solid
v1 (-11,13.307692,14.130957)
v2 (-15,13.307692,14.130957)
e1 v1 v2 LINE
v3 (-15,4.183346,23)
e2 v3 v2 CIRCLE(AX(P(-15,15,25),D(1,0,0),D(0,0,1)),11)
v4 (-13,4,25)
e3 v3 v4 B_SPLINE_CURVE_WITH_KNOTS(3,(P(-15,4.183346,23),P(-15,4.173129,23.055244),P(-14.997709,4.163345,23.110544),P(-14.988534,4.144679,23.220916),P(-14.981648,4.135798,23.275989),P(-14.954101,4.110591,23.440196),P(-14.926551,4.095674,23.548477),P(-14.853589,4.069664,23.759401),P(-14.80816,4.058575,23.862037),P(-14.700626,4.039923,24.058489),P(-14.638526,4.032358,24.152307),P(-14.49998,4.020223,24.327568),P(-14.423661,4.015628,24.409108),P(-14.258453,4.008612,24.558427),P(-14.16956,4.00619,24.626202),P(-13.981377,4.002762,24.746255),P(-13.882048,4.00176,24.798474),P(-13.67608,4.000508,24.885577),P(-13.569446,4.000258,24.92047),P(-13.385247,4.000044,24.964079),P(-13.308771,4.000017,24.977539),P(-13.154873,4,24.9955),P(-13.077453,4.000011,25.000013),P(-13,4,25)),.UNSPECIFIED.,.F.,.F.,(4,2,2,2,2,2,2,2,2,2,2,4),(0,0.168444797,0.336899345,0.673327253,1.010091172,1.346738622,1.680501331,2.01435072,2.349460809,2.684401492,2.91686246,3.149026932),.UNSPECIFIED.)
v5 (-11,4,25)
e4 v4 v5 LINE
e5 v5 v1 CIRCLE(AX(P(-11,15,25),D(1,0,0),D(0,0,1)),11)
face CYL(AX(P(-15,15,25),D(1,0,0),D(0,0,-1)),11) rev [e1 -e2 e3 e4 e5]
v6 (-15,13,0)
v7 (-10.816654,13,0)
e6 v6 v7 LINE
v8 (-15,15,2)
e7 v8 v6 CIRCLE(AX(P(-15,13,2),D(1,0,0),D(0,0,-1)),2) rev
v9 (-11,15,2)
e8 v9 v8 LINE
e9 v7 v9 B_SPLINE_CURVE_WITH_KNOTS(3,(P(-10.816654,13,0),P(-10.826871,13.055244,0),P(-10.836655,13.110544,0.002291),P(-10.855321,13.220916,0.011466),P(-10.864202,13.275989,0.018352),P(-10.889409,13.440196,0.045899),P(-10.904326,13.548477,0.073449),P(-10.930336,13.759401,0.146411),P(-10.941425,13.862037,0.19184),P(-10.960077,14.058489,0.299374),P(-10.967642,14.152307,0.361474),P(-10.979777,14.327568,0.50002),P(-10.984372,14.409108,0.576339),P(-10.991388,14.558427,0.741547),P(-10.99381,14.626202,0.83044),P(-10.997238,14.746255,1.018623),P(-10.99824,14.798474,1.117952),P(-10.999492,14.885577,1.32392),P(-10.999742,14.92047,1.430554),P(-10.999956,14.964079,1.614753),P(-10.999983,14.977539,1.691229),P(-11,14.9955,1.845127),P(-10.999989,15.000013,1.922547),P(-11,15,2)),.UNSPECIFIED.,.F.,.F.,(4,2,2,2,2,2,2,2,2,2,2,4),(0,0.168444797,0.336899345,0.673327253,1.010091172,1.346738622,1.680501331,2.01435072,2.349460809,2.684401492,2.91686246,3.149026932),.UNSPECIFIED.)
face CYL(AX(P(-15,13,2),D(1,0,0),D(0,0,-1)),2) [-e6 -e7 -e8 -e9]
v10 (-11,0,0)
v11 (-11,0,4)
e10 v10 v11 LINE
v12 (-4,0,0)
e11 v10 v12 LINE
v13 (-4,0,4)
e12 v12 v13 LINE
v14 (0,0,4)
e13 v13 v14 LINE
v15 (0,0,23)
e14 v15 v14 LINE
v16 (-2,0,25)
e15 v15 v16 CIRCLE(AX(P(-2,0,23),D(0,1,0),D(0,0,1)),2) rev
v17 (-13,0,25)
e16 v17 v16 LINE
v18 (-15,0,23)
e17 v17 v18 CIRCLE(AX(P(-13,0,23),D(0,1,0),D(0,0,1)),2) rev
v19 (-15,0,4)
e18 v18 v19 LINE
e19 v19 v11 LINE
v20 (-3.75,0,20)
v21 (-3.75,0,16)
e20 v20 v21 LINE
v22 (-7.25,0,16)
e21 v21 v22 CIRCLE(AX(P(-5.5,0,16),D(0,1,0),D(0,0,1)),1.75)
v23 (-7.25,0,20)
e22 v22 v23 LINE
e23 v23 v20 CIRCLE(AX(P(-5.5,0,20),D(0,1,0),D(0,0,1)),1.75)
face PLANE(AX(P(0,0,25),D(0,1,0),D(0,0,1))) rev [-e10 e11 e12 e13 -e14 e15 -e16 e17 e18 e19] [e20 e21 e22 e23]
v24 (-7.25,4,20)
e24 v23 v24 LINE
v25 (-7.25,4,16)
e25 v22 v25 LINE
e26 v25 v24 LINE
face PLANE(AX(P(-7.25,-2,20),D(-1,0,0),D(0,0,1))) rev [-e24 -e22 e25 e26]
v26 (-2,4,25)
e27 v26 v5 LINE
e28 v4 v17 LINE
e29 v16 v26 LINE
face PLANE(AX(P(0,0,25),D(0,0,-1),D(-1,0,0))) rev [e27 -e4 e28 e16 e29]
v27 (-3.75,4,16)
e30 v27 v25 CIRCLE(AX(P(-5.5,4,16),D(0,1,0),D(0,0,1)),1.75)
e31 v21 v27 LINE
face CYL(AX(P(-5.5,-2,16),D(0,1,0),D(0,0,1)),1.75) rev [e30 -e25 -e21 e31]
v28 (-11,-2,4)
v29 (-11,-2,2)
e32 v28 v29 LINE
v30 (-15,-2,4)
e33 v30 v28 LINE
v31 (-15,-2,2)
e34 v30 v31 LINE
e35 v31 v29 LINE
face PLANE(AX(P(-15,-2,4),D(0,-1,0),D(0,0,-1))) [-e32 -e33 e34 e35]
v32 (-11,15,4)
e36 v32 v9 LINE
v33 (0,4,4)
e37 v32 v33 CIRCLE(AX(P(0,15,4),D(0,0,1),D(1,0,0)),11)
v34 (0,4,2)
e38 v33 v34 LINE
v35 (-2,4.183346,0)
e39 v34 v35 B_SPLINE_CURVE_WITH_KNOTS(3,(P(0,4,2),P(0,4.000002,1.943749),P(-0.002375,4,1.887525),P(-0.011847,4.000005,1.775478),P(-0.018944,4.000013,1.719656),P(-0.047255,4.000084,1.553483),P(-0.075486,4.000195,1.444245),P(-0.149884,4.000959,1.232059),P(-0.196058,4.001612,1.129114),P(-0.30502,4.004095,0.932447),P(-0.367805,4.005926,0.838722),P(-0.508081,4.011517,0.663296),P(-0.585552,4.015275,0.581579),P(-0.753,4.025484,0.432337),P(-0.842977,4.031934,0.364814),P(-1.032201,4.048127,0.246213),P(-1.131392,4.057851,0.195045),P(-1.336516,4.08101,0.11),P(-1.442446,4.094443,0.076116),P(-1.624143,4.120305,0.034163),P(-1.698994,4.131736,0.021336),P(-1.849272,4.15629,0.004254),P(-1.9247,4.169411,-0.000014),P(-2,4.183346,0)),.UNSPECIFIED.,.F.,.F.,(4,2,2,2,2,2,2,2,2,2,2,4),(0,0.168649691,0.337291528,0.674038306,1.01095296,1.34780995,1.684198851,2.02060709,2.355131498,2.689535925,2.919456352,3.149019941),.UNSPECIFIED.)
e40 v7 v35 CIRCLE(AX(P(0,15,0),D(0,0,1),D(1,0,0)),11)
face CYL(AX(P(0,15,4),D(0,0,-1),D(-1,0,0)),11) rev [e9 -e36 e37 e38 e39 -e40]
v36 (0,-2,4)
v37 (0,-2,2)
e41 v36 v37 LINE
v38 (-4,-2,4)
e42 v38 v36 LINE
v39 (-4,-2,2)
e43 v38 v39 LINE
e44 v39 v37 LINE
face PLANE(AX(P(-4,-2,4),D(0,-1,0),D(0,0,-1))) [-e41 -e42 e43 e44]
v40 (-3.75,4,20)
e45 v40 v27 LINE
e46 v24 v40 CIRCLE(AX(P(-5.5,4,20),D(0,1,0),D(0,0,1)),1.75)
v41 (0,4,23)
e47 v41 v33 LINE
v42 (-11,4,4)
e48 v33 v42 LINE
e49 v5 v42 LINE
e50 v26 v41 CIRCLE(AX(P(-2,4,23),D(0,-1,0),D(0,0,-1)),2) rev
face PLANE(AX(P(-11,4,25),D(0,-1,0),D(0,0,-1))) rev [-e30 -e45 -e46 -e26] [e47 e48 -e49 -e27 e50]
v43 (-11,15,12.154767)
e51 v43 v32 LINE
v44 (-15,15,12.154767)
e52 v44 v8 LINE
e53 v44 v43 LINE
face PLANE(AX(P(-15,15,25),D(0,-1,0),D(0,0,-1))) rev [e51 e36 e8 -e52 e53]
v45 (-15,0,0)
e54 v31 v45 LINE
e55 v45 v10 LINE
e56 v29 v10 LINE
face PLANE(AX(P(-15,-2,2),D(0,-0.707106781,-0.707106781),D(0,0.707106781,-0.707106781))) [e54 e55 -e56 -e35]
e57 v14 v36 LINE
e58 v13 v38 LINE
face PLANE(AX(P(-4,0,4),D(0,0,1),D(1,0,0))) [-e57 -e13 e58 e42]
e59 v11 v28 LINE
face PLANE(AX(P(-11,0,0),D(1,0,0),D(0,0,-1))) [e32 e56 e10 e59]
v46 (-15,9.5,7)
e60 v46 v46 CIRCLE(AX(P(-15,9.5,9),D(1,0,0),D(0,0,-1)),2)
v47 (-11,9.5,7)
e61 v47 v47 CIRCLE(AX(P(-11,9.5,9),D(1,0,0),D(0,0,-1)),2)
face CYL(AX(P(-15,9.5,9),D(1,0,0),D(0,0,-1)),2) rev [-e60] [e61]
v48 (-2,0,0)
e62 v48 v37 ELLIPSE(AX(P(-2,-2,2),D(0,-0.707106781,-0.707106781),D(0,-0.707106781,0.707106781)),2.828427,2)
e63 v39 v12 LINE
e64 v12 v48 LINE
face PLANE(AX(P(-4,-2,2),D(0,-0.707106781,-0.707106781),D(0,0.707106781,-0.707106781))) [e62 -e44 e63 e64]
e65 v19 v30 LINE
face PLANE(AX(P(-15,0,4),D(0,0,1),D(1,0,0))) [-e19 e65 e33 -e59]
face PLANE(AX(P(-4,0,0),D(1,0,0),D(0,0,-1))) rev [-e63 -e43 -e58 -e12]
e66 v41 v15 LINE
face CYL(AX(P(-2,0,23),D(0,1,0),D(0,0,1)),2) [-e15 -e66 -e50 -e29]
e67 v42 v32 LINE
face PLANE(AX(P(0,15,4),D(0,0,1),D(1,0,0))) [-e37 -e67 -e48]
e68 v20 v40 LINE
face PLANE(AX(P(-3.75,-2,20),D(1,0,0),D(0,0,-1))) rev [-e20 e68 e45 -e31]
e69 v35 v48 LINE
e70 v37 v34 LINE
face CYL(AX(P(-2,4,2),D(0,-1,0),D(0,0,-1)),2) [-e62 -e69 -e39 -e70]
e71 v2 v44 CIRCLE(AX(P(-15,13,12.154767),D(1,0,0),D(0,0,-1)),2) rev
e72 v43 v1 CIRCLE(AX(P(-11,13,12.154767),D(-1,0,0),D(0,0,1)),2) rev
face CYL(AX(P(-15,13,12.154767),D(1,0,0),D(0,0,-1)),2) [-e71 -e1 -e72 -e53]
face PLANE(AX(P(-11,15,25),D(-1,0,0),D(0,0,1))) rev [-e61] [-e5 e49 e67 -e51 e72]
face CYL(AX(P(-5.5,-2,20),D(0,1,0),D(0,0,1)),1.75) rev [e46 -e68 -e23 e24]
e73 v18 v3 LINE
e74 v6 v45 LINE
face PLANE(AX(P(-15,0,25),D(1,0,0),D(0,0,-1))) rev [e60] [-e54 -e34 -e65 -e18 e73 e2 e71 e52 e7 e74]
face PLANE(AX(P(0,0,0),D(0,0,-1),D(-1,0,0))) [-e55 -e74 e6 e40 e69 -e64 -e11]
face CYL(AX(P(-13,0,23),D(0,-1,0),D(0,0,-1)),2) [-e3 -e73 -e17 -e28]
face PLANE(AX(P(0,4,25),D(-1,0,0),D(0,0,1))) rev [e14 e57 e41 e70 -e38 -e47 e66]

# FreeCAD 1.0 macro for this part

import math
import FreeCAD as App
import Part
import Sketcher

V = App.Vector


def edges_at(feature, points):
    """Names of the edges that pass closest to the given points."""
    edges = feature.Shape.Edges
    near = lambda p: min(range(len(edges)), key=lambda i: edges[i].distToShape(Part.Vertex(*p))[0])
    return sorted({f"Edge{near(p) + 1}" for p in points})

doc = App.newDocument("Part")
body = doc.addObject("PartDesign::Body", "Body")

# Sketch on XY plane
sketch1 = doc.addObject("Sketcher::SketchObject", "Sketch")
body.addObject(sketch1)
sketch1.AttachmentSupport = (doc.XY_Plane, [""])
sketch1.MapMode = "FlatFace"
sketch1.addGeometry([
    Part.LineSegment(V(-15, 0, 0), V(0, 0, 0)),  # 0
    Part.LineSegment(V(0, 0, 0), V(0, 4, 0)),  # 1
    Part.LineSegment(V(0, 4, 0), V(-11, 4, 0)),  # 2
    Part.LineSegment(V(-11, 4, 0), V(-11, 15, 0)),  # 3
    Part.LineSegment(V(-11, 15, 0), V(-15, 15, 0)),  # 4
    Part.LineSegment(V(-15, 15, 0), V(-15, 0, 0)),  # 5
], False)
sketch1.addConstraint([
    Sketcher.Constraint("Coincident", 0, 2, 1, 1),
    Sketcher.Constraint("Coincident", 1, 2, 2, 1),
    Sketcher.Constraint("Coincident", 2, 2, 3, 1),
    Sketcher.Constraint("Coincident", 3, 2, 4, 1),
    Sketcher.Constraint("Coincident", 4, 2, 5, 1),
    Sketcher.Constraint("Coincident", 5, 2, 0, 1),
    Sketcher.Constraint("Horizontal", 0),
    Sketcher.Constraint("Vertical", 1),
    Sketcher.Constraint("Horizontal", 2),
    Sketcher.Constraint("Vertical", 3),
    Sketcher.Constraint("Horizontal", 4),
    Sketcher.Constraint("Vertical", 5),
    Sketcher.Constraint("Coincident", 0, 2, -1, 1),
    Sketcher.Constraint("Equal", 4, 1),
    Sketcher.Constraint("Equal", 2, 3),
    Sketcher.Constraint("DistanceX", 0, 1, 0, 2, 15.0),
    Sketcher.Constraint("DistanceX", 2, 2, 2, 1, 11.0),
])
pad1 = doc.addObject("PartDesign::Pad", "Pad")
body.addObject(pad1)
pad1.Profile = sketch1
pad1.Length = 25

# Sketch on XY plane
sketch2 = doc.addObject("Sketcher::SketchObject", "Sketch001")
body.addObject(sketch2)
sketch2.AttachmentSupport = (doc.XY_Plane, [""])
sketch2.MapMode = "FlatFace"
sketch2.addGeometry([
    Part.LineSegment(V(0, 4, 0), V(-11, 4, 0)),
    Part.LineSegment(V(-11, 4, 0), V(-11, 15, 0)),
    Part.ArcOfCircle(Part.Circle(V(0, 15, 0), V(0, 0, 1), 11), math.radians(180), math.radians(270)),
], False)
sketch2.addConstraint([
    Sketcher.Constraint("Coincident", 0, 2, 1, 1),
    Sketcher.Constraint("Tangent", 1, 2, 2, 1),
    Sketcher.Constraint("Tangent", 2, 2, 0, 1),
    Sketcher.Constraint("Horizontal", 0),
    Sketcher.Constraint("Vertical", 1),
    Sketcher.Constraint("PointOnObject", 2, 3, -2),
    Sketcher.Constraint("Radius", 2, 11.0),
    Sketcher.Constraint("DistanceY", -1, 1, 2, 3, 15.0),
])
pad2 = doc.addObject("PartDesign::Pad", "Pad001")
body.addObject(pad2)
pad2.Profile = sketch2
pad2.Length = 4

# Sketch on YZ plane
sketch3 = doc.addObject("Sketcher::SketchObject", "Sketch002")
body.addObject(sketch3)
sketch3.AttachmentSupport = (doc.YZ_Plane, [""])
sketch3.MapMode = "FlatFace"
sketch3.addGeometry([
    Part.LineSegment(V(0, 0, 0), V(0, 4, 0)),
    Part.LineSegment(V(0, 4, 0), V(-2, 4, 0)),
    Part.LineSegment(V(-2, 4, 0), V(-2, 2, 0)),
    Part.LineSegment(V(-2, 2, 0), V(0, 0, 0)),
], False)
sketch3.addConstraint([
    Sketcher.Constraint("Coincident", 0, 2, 1, 1),
    Sketcher.Constraint("Coincident", 1, 2, 2, 1),
    Sketcher.Constraint("Coincident", 2, 2, 3, 1),
    Sketcher.Constraint("Coincident", 3, 2, 0, 1),
    Sketcher.Constraint("Vertical", 0),
    Sketcher.Constraint("Horizontal", 1),
    Sketcher.Constraint("Vertical", 2),
    Sketcher.Constraint("Coincident", 3, 2, -1, 1),
    Sketcher.Constraint("Equal", 1, 2),
    Sketcher.Constraint("DistanceX", 1, 2, 1, 1, 2.0),
    Sketcher.Constraint("DistanceY", 0, 1, 0, 2, 4.0),
])
pad3 = doc.addObject("PartDesign::Pad", "Pad002")
body.addObject(pad3)
pad3.Profile = sketch3
pad3.Length = 4
pad3.Reversed = True
doc.recompute()

linearpattern = doc.addObject("PartDesign::LinearPattern", "LinearPattern")
body.addObject(linearpattern)
linearpattern.Originals = [pad3]
linearpattern.Direction = (doc.X_Axis, [""])
linearpattern.Mode = "offset"
linearpattern.Offset = 11
linearpattern.Occurrences = 2
linearpattern.Reversed = True
body.Tip = linearpattern

# Sketch on XZ plane
sketch4 = doc.addObject("Sketcher::SketchObject", "Sketch003")
body.addObject(sketch4)
sketch4.AttachmentSupport = (doc.XZ_Plane, [""])
sketch4.MapMode = "FlatFace"
sketch4.AttachmentOffset = App.Placement(V(0, 0, -4), App.Rotation())
sketch4.addGeometry([
    Part.LineSegment(V(-7.2, 16, 0), V(-7.2, 20, 0)),
    Part.ArcOfCircle(Part.Circle(V(-5.5, 20, 0), V(0, 0, 1), 1.8), math.radians(0), math.radians(180)),
    Part.LineSegment(V(-3.8, 20, 0), V(-3.8, 16, 0)),
    Part.ArcOfCircle(Part.Circle(V(-5.5, 16, 0), V(0, 0, 1), 1.8), math.radians(180), math.radians(360)),
], False)
sketch4.addConstraint([
    Sketcher.Constraint("Tangent", 0, 2, 1, 2),
    Sketcher.Constraint("Tangent", 1, 1, 2, 1),
    Sketcher.Constraint("Tangent", 2, 2, 3, 2),
    Sketcher.Constraint("Tangent", 3, 1, 0, 1),
    Sketcher.Constraint("Vertical", 0),
    Sketcher.Constraint("Vertical", 2),
    Sketcher.Constraint("DistanceY", 0, 1, 0, 2, 4.0),
    Sketcher.Constraint("Radius", 1, 1.75),
    Sketcher.Constraint("DistanceY", -1, 1, 1, 3, 20.0),
    Sketcher.Constraint("DistanceX", 1, 3, -1, 1, 5.5),
])
pocket1 = doc.addObject("PartDesign::Pocket", "Pocket")
body.addObject(pocket1)
pocket1.Profile = sketch4
pocket1.Type = "ThroughAll"
pocket1.Reversed = True

# Sketch on YZ plane
sketch5 = doc.addObject("Sketcher::SketchObject", "Sketch004")
body.addObject(sketch5)
sketch5.AttachmentSupport = (doc.YZ_Plane, [""])
sketch5.MapMode = "FlatFace"
sketch5.AttachmentOffset = App.Placement(V(0, 0, -11), App.Rotation())
sketch5.addGeometry(Part.Circle(V(9.5, 9, 0), V(0, 0, 1), 2), False)
sketch5.addConstraint([
    Sketcher.Constraint("Diameter", 0, 4.0),
    Sketcher.Constraint("DistanceY", -1, 1, 0, 3, 9.0),
    Sketcher.Constraint("DistanceX", -1, 1, 0, 3, 9.5),
])
pocket2 = doc.addObject("PartDesign::Pocket", "Pocket001")
body.addObject(pocket2)
pocket2.Profile = sketch5
pocket2.Type = "ThroughAll"

# Sketch on YZ plane
sketch6 = doc.addObject("Sketcher::SketchObject", "Sketch005")
body.addObject(sketch6)
sketch6.AttachmentSupport = (doc.YZ_Plane, [""])
sketch6.MapMode = "FlatFace"
sketch6.AttachmentOffset = App.Placement(V(0, 0, -11), App.Rotation())
sketch6.addGeometry([
    Part.LineSegment(V(15, 25, 0), V(4, 25, 0)),
    Part.ArcOfCircle(Part.Circle(V(15, 25, 0), V(0, 0, 1), 11), math.radians(180), math.radians(270)),
    Part.LineSegment(V(15, 14, 0), V(15, 25, 0)),
], False)
sketch6.addConstraint([
    Sketcher.Constraint("Coincident", 0, 2, 1, 1),
    Sketcher.Constraint("Coincident", 1, 2, 2, 1),
    Sketcher.Constraint("Coincident", 2, 2, 0, 1),
    Sketcher.Constraint("Horizontal", 0),
    Sketcher.Constraint("Vertical", 2),
    Sketcher.Constraint("Coincident", 2, 2, 1, 3),
    Sketcher.Constraint("Radius", 1, 11.0),
    Sketcher.Constraint("DistanceX", -1, 1, 1, 3, 15.0),
    Sketcher.Constraint("DistanceY", -1, 1, 1, 3, 25.0),
])
pocket3 = doc.addObject("PartDesign::Pocket", "Pocket002")
body.addObject(pocket3)
pocket3.Profile = sketch6
pocket3.Type = "ThroughAll"
doc.recompute()

fillet = doc.addObject("PartDesign::Fillet", "Fillet")
body.addObject(fillet)
fillet.Base = (pocket3, edges_at(pocket3, [(-13, 15, 14)]))
fillet.Radius = 2
doc.recompute()

fillet2 = doc.addObject("PartDesign::Fillet", "Fillet001")
body.addObject(fillet2)
fillet2.Base = (fillet, edges_at(fillet, [(0, 2, 25)]))
fillet2.Radius = 2
doc.recompute()

fillet3 = doc.addObject("PartDesign::Fillet", "Fillet002")
body.addObject(fillet3)
fillet3.Base = (fillet2, edges_at(fillet2, [(-15, 2, 25)]))
fillet3.Radius = 2
doc.recompute()

fillet4 = doc.addObject("PartDesign::Fillet", "Fillet003")
body.addObject(fillet4)
fillet4.Base = (fillet3, edges_at(fillet3, [(0, 2, 0)]))
fillet4.Radius = 2
doc.recompute()

fillet5 = doc.addObject("PartDesign::Fillet", "Fillet004")
body.addObject(fillet5)
fillet5.Base = (fillet4, edges_at(fillet4, [(-13, 15, 0)]))
fillet5.Radius = 2

doc.recompute()
